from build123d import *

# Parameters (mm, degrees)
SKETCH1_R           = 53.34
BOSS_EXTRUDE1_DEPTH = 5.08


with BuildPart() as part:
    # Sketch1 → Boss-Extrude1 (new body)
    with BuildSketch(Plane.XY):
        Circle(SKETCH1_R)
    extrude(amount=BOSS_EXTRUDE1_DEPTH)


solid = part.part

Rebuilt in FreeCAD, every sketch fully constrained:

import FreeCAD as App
import Part
import Sketcher
Q = App.Units.Quantity

doc = App.newDocument("Part")
body = doc.addObject("PartDesign::Body", "Body")

# Sketch on XY plane
sketch1 = doc.addObject("Sketcher::SketchObject", "Sketch")
body.addObject(sketch1)
sketch1.AttachmentSupport = (doc.XY_Plane, [""])
sketch1.MapMode = "FlatFace"
sketch1.addGeometry(Part.Circle(App.Vector(0, 0, 0), App.Vector(0, 0, 1), 53), False)
sketch1.addConstraint([
    Sketcher.Constraint("Coincident", 0, 3, -1, 1),
    Sketcher.Constraint("Diameter", 0, Q("4.2 in")),
])
pad1 = doc.addObject("PartDesign::Pad", "Pad")
body.addObject(pad1)
pad1.Profile = sketch1
pad1.Length = Q("0.2 in")

doc.recompute()
